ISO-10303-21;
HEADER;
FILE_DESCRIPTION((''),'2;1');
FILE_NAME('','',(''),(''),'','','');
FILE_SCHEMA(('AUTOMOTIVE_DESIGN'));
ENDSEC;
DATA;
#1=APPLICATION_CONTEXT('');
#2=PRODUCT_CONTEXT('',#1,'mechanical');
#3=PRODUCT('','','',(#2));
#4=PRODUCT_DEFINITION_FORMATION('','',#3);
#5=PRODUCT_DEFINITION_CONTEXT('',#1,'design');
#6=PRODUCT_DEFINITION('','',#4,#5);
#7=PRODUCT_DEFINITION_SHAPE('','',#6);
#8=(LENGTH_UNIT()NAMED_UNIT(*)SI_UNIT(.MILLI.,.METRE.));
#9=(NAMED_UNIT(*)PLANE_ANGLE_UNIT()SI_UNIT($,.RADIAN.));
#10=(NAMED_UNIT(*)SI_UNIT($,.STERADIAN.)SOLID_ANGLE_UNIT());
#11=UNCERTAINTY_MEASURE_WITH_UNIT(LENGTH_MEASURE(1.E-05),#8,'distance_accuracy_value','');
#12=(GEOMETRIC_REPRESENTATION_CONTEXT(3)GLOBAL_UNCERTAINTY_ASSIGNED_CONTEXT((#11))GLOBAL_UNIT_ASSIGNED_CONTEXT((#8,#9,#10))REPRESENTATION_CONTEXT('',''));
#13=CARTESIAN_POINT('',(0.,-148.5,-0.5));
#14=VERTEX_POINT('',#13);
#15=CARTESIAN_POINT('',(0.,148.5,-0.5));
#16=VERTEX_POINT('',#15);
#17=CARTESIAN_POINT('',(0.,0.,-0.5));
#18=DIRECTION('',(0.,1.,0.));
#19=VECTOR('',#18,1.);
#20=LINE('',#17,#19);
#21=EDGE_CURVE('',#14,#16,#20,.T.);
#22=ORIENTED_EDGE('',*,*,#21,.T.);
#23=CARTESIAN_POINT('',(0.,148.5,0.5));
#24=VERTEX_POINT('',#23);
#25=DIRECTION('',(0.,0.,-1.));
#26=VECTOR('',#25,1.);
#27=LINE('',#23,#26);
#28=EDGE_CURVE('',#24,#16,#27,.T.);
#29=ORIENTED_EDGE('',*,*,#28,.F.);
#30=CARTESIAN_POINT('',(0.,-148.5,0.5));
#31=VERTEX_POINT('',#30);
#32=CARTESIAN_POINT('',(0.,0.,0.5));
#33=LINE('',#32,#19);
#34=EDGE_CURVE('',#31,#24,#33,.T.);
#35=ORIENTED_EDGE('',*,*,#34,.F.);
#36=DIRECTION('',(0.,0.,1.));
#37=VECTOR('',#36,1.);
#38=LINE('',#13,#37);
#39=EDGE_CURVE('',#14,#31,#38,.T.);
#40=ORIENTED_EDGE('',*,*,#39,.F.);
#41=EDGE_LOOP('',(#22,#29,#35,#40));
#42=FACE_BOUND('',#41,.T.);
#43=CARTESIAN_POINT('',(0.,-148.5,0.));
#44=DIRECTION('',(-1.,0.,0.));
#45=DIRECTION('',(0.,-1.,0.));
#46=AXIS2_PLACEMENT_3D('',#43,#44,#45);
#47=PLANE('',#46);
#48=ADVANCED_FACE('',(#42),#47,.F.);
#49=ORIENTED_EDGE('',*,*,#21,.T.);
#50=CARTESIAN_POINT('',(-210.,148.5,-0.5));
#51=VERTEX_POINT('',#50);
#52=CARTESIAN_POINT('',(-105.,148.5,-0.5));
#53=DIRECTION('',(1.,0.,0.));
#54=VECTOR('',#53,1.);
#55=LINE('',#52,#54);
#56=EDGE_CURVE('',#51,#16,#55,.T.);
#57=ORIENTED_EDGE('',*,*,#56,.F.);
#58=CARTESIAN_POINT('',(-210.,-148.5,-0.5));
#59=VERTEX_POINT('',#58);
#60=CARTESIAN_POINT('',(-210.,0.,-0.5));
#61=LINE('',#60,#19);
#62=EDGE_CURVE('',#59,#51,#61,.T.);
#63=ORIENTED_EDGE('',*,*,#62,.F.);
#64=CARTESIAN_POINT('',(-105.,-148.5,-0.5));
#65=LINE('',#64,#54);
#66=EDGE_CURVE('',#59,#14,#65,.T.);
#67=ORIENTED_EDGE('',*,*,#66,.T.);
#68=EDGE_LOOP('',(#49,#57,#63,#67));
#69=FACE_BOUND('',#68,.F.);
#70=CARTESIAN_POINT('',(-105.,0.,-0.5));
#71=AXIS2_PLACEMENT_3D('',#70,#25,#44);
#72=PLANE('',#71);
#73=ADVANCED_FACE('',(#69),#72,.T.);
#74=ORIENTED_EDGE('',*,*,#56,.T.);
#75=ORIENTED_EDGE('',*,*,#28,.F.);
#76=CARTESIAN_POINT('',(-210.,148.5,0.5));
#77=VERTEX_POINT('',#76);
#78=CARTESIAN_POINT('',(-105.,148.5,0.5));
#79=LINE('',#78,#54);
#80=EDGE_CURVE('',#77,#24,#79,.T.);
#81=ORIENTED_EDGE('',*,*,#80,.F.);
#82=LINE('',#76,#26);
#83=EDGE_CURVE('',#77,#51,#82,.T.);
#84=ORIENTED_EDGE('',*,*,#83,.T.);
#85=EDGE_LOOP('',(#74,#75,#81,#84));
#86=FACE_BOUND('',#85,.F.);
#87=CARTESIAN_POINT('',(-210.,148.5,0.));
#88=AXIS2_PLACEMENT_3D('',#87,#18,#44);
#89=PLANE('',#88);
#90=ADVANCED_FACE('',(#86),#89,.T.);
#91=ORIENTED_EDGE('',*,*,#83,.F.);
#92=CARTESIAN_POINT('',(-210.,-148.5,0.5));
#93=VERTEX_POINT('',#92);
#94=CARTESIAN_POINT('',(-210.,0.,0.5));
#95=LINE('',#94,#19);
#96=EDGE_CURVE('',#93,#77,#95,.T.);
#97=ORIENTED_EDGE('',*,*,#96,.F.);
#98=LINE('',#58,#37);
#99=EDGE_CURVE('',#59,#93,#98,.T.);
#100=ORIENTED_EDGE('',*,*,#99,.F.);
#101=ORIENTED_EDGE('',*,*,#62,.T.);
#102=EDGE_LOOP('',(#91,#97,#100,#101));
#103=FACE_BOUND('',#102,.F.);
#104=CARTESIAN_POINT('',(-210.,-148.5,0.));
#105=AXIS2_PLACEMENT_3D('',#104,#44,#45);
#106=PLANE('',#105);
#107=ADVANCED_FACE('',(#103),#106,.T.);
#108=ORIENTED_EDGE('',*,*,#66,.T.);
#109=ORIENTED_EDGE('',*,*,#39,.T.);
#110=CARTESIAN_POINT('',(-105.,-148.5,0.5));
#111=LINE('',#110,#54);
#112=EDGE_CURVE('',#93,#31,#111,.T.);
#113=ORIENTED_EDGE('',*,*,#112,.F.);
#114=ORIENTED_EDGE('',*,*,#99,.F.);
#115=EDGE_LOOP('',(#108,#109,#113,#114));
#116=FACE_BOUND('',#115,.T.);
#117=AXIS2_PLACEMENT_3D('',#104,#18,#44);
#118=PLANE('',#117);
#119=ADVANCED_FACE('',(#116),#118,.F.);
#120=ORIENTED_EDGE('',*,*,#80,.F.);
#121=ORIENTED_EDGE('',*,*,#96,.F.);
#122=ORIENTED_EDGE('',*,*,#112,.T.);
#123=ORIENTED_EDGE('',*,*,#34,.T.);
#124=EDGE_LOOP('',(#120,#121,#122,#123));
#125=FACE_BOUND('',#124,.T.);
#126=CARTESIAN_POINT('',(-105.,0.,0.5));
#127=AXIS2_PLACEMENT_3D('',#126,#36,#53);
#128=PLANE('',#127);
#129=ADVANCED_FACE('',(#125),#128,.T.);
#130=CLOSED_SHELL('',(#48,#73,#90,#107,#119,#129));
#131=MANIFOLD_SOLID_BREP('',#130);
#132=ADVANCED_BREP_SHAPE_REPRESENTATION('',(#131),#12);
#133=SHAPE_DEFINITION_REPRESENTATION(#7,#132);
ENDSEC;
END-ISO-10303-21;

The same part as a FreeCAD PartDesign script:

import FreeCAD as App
import Part
import Sketcher
Q = App.Units.Quantity

doc = App.newDocument("Part")
body = doc.addObject("PartDesign::Body", "Body")

sketch1 = body.newObject("Sketcher::SketchObject", "Sketch")
sketch1.AttachmentSupport = (doc.getObject("XY_Plane"), [""])
sketch1.MapMode = "FlatFace"
sketch1.addGeometry([
    Part.LineSegment(App.Vector(-210, 148.5, 0), App.Vector(-210, -148.5, 0)),
    Part.LineSegment(App.Vector(-210, -148.5, 0), App.Vector(0, -148.5, 0)),
    Part.LineSegment(App.Vector(0, -148.5, 0), App.Vector(0, 148.5, 0)),
    Part.LineSegment(App.Vector(0, 148.5, 0), App.Vector(-210, 148.5, 0)),
], False)
sketch1.addConstraint([
    Sketcher.Constraint("Coincident", 0, 2, 1, 1),
    Sketcher.Constraint("Coincident", 1, 2, 2, 1),
    Sketcher.Constraint("Coincident", 2, 2, 3, 1),
    Sketcher.Constraint("Coincident", 3, 2, 0, 1),
    Sketcher.Constraint("Vertical", 0),
    Sketcher.Constraint("Horizontal", 1),
    Sketcher.Constraint("Vertical", 2),
    Sketcher.Constraint("Horizontal", 3),
    Sketcher.Constraint("Symmetric", 1, 2, 2, 2, -1, 1),
    Sketcher.Constraint("DistanceX", 1, 1, 1, 2, Q("210 mm")),
    Sketcher.Constraint("DistanceY", 0, 2, 0, 1, Q("297 mm")),
])
pad1 = body.newObject("PartDesign::Pad", "Pad")
pad1.Profile = sketch1
pad1.Length = 0.5
body2 = doc.addObject("PartDesign::Body", "Body001")
doc.recompute()

body2.BaseFeature = body
doc.recompute()

mirroring = doc.addObject("Part::Mirroring", "Mirroring")
mirroring.Source = body
mirroring.Base = App.Vector(0, 0, 0)
mirroring.Normal = App.Vector(0, 0, 1)
body3 = doc.addObject("PartDesign::Body", "Body002")
body3.BaseFeature = mirroring
boolean = body2.newObject("PartDesign::Boolean", "Boolean")
boolean.Type = "Fuse"
boolean.addObjects([body3])
doc.recompute()
mirroring.Visibility = False

doc.recompute()
